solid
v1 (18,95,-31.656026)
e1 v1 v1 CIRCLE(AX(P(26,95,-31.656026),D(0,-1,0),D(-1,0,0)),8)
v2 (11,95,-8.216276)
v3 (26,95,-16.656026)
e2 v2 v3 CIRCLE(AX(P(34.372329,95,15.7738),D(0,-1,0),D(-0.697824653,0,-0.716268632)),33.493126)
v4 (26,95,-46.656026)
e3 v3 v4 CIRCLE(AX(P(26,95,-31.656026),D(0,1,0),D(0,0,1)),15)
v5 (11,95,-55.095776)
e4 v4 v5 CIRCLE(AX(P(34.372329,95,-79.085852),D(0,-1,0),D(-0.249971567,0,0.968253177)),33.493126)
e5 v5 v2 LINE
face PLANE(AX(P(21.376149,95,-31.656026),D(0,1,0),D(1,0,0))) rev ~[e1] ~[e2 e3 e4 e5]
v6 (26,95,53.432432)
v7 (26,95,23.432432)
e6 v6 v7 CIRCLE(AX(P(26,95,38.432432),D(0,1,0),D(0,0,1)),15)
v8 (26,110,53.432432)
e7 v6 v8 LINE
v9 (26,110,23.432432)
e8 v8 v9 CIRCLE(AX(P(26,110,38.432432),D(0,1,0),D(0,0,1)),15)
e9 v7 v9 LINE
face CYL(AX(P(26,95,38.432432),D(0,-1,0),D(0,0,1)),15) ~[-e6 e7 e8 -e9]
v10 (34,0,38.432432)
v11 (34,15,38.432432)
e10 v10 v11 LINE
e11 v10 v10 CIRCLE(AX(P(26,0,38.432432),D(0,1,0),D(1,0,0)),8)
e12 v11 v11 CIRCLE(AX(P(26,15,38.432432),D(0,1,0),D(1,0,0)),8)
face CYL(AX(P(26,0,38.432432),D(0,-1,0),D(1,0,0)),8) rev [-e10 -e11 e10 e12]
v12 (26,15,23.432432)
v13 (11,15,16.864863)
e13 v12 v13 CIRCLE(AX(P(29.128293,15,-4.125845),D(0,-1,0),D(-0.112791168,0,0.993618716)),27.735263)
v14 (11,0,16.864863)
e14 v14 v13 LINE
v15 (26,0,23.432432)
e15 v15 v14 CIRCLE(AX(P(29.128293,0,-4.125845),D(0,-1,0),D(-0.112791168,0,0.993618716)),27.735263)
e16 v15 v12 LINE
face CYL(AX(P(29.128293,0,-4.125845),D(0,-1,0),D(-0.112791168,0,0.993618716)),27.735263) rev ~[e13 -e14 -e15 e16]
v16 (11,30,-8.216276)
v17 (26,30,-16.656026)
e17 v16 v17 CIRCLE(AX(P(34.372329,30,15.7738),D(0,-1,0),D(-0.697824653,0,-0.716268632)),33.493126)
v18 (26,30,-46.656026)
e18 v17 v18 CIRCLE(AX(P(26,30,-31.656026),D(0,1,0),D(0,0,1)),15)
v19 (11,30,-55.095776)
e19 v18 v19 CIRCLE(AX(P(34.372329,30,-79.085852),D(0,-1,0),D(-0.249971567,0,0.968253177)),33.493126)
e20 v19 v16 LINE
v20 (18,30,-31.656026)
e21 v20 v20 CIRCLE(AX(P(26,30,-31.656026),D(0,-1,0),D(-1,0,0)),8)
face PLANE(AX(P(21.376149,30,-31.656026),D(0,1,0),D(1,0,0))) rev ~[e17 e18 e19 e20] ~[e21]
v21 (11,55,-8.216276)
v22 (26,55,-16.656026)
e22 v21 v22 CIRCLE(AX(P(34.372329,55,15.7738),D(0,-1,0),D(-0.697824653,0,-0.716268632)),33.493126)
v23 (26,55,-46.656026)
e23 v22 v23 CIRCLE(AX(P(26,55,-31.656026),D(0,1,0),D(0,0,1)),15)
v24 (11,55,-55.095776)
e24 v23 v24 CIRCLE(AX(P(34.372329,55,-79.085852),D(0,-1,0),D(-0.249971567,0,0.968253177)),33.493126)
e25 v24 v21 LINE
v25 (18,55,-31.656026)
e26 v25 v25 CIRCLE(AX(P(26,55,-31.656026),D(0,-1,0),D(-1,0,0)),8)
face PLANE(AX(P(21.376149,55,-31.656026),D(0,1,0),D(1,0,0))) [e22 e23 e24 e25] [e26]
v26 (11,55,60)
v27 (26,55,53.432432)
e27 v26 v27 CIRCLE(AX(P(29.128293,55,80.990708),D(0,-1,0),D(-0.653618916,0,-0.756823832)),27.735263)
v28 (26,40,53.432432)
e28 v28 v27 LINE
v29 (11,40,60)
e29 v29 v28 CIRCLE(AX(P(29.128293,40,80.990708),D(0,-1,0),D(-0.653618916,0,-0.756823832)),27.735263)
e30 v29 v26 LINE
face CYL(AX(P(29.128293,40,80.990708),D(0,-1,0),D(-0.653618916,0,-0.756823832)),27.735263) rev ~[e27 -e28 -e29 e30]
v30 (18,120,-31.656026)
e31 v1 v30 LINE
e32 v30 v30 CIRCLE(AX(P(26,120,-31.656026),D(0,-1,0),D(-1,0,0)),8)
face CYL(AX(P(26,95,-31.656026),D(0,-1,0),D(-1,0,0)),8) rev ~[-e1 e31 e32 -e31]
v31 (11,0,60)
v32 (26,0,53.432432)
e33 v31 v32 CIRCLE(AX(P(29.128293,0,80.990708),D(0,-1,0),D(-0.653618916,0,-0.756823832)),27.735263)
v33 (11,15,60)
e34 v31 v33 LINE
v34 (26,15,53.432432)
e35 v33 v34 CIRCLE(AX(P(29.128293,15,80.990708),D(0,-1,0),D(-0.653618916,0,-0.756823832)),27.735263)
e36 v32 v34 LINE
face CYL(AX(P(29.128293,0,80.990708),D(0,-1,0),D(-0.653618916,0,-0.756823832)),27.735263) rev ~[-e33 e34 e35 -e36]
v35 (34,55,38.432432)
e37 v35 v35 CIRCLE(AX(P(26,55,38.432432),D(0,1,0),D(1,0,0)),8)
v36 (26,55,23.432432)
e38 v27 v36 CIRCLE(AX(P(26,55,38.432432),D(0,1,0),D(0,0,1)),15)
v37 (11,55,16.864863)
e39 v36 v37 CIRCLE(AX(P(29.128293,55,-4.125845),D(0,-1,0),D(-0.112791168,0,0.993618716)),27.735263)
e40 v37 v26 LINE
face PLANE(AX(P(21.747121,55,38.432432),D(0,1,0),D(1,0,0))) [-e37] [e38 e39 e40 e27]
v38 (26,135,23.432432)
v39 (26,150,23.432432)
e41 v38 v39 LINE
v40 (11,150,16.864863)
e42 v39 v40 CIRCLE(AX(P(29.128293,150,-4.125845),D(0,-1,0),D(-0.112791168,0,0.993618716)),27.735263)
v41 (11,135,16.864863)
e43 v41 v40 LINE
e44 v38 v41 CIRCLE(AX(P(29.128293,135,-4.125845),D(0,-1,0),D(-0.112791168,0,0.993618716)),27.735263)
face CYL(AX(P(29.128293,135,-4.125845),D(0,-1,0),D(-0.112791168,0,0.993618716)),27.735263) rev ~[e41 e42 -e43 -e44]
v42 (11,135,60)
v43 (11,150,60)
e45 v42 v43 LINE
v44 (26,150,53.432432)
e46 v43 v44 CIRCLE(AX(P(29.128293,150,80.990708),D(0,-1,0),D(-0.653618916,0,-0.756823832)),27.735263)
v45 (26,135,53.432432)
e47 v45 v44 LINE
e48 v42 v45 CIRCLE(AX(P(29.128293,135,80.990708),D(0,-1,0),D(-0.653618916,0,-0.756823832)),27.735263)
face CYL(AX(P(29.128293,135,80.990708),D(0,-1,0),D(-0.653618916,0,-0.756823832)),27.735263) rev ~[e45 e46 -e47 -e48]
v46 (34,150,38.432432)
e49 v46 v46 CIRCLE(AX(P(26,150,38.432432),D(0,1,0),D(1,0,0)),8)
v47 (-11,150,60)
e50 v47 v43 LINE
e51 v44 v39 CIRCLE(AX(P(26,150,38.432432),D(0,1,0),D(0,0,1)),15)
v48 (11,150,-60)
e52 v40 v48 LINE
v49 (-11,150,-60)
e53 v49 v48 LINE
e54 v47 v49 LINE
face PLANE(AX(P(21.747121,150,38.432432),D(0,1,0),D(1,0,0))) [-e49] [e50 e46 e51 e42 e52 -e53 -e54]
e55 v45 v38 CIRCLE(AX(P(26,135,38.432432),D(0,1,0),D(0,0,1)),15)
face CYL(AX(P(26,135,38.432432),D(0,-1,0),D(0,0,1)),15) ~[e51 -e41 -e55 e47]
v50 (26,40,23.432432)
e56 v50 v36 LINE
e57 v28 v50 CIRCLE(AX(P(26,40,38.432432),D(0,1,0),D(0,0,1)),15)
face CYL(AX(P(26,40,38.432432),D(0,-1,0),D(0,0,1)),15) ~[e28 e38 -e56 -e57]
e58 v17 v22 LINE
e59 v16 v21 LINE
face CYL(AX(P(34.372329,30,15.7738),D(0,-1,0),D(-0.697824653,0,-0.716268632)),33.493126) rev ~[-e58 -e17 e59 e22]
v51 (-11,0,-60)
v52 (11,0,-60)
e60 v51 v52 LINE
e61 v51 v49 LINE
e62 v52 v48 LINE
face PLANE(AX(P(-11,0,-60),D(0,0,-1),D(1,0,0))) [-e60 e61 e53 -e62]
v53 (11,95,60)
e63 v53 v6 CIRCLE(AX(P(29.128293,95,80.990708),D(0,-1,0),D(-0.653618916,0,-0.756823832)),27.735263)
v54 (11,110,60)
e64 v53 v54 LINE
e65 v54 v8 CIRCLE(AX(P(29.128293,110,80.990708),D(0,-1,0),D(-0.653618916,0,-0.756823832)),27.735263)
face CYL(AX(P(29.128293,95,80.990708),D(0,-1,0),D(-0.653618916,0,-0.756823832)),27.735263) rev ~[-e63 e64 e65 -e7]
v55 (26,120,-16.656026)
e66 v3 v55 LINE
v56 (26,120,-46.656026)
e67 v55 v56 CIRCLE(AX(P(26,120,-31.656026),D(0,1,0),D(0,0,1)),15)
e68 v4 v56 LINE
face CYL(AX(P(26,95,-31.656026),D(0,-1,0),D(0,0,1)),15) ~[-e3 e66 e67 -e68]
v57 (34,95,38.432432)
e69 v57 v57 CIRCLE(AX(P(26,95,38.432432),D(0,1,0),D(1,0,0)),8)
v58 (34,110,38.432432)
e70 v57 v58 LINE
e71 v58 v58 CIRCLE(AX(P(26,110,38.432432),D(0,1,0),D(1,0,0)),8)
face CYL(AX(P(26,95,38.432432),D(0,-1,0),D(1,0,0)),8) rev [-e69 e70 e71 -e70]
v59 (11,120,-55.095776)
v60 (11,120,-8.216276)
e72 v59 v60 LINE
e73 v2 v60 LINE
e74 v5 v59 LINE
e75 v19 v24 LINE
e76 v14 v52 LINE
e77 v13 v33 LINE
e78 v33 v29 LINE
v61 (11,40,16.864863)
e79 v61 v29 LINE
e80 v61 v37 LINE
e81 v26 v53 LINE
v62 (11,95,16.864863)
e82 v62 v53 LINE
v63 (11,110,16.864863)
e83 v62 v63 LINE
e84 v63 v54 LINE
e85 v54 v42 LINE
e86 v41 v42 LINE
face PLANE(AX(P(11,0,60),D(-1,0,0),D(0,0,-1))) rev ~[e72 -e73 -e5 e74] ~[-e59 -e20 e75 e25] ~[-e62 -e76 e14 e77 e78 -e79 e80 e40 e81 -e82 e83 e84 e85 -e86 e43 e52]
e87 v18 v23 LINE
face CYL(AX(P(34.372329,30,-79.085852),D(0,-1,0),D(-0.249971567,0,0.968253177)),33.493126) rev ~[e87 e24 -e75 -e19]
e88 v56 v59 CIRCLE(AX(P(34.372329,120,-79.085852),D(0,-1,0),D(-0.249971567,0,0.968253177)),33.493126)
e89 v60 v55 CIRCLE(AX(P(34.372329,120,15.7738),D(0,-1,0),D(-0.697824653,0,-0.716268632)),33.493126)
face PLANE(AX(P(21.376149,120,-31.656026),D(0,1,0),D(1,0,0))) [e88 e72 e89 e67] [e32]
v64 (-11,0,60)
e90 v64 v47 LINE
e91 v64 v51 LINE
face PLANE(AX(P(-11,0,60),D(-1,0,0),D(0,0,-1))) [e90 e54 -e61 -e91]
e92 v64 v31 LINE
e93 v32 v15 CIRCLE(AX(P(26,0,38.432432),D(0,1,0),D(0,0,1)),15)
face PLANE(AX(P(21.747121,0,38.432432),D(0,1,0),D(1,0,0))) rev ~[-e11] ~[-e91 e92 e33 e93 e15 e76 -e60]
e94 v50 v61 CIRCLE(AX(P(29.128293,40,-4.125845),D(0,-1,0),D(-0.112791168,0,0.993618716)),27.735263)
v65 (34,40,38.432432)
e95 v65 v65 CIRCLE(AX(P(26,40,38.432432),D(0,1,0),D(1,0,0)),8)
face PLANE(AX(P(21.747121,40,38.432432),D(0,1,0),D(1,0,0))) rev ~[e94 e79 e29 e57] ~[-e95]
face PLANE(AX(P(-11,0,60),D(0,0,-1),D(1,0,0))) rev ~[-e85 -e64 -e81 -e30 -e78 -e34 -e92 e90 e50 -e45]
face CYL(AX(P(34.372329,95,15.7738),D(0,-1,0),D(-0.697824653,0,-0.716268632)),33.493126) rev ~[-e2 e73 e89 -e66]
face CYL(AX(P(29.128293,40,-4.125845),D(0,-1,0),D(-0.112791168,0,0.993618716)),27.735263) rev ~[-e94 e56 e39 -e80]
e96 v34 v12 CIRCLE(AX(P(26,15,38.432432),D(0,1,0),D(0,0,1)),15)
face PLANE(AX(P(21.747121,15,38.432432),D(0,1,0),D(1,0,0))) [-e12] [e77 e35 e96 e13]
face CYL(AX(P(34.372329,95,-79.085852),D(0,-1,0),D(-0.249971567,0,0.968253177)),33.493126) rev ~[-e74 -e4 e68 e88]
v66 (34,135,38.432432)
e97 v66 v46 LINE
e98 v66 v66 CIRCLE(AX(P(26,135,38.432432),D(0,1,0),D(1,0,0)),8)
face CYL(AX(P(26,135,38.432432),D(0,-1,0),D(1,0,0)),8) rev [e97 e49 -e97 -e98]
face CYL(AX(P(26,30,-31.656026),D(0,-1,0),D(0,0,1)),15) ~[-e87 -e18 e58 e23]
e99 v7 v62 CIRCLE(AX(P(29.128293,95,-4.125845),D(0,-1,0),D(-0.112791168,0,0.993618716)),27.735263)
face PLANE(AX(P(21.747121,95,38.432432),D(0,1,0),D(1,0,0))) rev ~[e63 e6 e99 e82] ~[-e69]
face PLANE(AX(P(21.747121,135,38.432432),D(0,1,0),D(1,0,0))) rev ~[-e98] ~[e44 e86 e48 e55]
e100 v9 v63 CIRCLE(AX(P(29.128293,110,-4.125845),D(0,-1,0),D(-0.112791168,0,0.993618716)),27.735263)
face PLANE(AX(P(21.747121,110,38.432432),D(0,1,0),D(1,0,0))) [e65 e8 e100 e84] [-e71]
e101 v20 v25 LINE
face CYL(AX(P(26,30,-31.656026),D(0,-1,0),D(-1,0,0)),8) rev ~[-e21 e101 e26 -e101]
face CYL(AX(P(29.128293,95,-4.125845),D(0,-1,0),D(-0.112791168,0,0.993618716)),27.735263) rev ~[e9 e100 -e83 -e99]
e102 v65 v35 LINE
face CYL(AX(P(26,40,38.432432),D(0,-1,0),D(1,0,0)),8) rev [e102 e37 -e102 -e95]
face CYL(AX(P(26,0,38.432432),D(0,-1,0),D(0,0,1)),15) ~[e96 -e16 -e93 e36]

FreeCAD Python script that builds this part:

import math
import FreeCAD as App
import Part
import Sketcher

V = App.Vector
Q = App.Units.Quantity

doc = App.newDocument("Part")
body = doc.addObject("PartDesign::Body", "Body")

# Sketch on XZ plane
sketch1 = body.newObject("Sketcher::SketchObject", "Sketch")
sketch1.AttachmentSupport = (doc.getObject("XZ_Plane"), [""])
sketch1.MapMode = "FlatFace"
sketch1.addGeometry(Part.LineSegment(V(-11, -60, 0), V(-11, 60, 0)), False)
sketch1.addGeometry(Part.LineSegment(V(-11, 60, 0), V(11, 60, 0)), False)
sketch1.addGeometry(Part.LineSegment(V(11, 60, 0), V(11, -60, 0)), False)
sketch1.addGeometry(Part.LineSegment(V(11, -60, 0), V(-11, -60, 0)), False)
sketch1.addConstraint(Sketcher.Constraint("Coincident", 0, 2, 1, 1))
sketch1.addConstraint(Sketcher.Constraint("Coincident", 1, 2, 2, 1))
sketch1.addConstraint(Sketcher.Constraint("Coincident", 2, 2, 3, 1))
sketch1.addConstraint(Sketcher.Constraint("Coincident", 3, 2, 0, 1))
sketch1.addConstraint(Sketcher.Constraint("Vertical", 0))
sketch1.addConstraint(Sketcher.Constraint("Horizontal", 1))
sketch1.addConstraint(Sketcher.Constraint("Vertical", 2))
sketch1.addConstraint(Sketcher.Constraint("Horizontal", 3))
sketch1.addConstraint(Sketcher.Constraint("Symmetric", 0, 2, 2, 2, -1, 1))
sketch1.addConstraint(Sketcher.Constraint("DistanceX", 1, 1, 1, 2, Q("22 mm")))
sketch1.addConstraint(Sketcher.Constraint("DistanceY", 0, 1, 0, 2, Q("120 mm")))
pad1 = body.newObject("PartDesign::Pad", "Pad")
pad1.Profile = sketch1
pad1.Length = 150
pad1.Reversed = True

# Sketch on XZ plane
sketch2 = body.newObject("Sketcher::SketchObject", "Sketch001")
sketch2.AttachmentSupport = (doc.getObject("XZ_Plane"), [""])
sketch2.MapMode = "FlatFace"
sketch2.addGeometry(Part.LineSegment(V(11, 17, 0), V(11, 60, 0)), False)
sketch2.addGeometry(Part.ArcOfCircle(Part.Circle(V(29, 81, 0), V(0, 0, 1), 28), math.radians(-131), math.radians(-96)), False)
sketch2.addGeometry(Part.ArcOfCircle(Part.Circle(V(26, 38, 0), V(0, 0, 1), 15), math.radians(-90), math.radians(90)), False)
sketch2.addGeometry(Part.ArcOfCircle(Part.Circle(V(29, -4, 0), V(0, 0, 1), 28), math.radians(96), math.radians(131)), False)
sketch2.addGeometry(Part.Circle(V(26, 38, 0), V(0, 0, 1), 8), False)
sketch2.addConstraint(Sketcher.Constraint("Coincident", 0, 2, 1, 1))
sketch2.addConstraint(Sketcher.Constraint("Coincident", 1, 2, 2, 2))
sketch2.addConstraint(Sketcher.Constraint("Coincident", 2, 1, 3, 1))
sketch2.addConstraint(Sketcher.Constraint("Coincident", 3, 2, 0, 1))
sketch2.addConstraint(Sketcher.Constraint("Vertical", 0))
sketch2.addConstraint(Sketcher.Constraint("Coincident", 4, 3, 2, 3))
sketch2.addConstraint(Sketcher.Constraint("Equal", 1, 3))
sketch2.addConstraint(Sketcher.Constraint("Vertical", 1, 3, 3, 3))
sketch2.addConstraint(Sketcher.Constraint("Vertical", 4, 3, 1, 2))
sketch2.addConstraint(Sketcher.Constraint("Vertical", 1, 2, 2, 1))
sketch2.addConstraint(Sketcher.Constraint("Diameter", 4, Q("16 mm")))
sketch2.addConstraint(Sketcher.Constraint("Radius", 2, Q("15 mm")))
sketch2.addConstraint(Sketcher.Constraint("DistanceX", -1, 1, 2, 3, Q("26 mm")))
sketch2.addConstraint(Sketcher.Constraint("DistanceX", -1, 1, 0, 2, Q("11 mm")))
sketch2.addConstraint(Sketcher.Constraint("DistanceY", -1, 1, 0, 2, Q("60 mm")))
sketch2.addConstraint(Sketcher.Constraint("Radius", 1, Q("27.735263 mm")))
sketch2.addConstraint(Sketcher.Constraint("DistanceY", 0, 1, 0, 2, Q("43.135137 mm")))
pad2 = body.newObject("PartDesign::Pad", "Pad001")
pad2.Profile = sketch2
pad2.Length = 15
pad2.Reversed = True
doc.recompute()

linearpattern = body.newObject("PartDesign::LinearPattern", "LinearPattern")
linearpattern.Originals = [pad2]
linearpattern.Direction = (doc.getObject("Y_Axis"), [""])
linearpattern.Mode = "offset"
linearpattern.Offset = 40
linearpattern.Occurrences = 2
body.Tip = linearpattern
doc.recompute()

linearpattern2 = body.newObject("PartDesign::LinearPattern", "LinearPattern001")
linearpattern2.Originals = [pad2]
linearpattern2.Direction = (doc.getObject("Y_Axis"), [""])
linearpattern2.Mode = "offset"
linearpattern2.Offset = 135
linearpattern2.Occurrences = 2
body.Tip = linearpattern2
doc.recompute()

linearpattern3 = body.newObject("PartDesign::LinearPattern", "LinearPattern002")
linearpattern3.Originals = [pad2]
linearpattern3.Direction = (doc.getObject("Y_Axis"), [""])
linearpattern3.Mode = "offset"
linearpattern3.Offset = 95
linearpattern3.Occurrences = 2
body.Tip = linearpattern3

# Sketch on XZ plane
sketch3 = body.newObject("Sketcher::SketchObject", "Sketch002")
sketch3.AttachmentSupport = (doc.getObject("XZ_Plane"), [""])
sketch3.MapMode = "FlatFace"
sketch3.AttachmentOffset = App.Placement(V(0, 0, -30), App.Rotation())
sketch3.addGeometry(Part.LineSegment(V(11, -8, 0), V(11, -55, 0)), False)
sketch3.addGeometry(Part.ArcOfCircle(Part.Circle(V(34, -79, 0), V(0, 0, 1), 33), math.radians(104), math.radians(134)), False)
sketch3.addGeometry(Part.ArcOfCircle(Part.Circle(V(26, -32, 0), V(0, 0, 1), 15), math.radians(-90), math.radians(90)), False)
sketch3.addGeometry(Part.ArcOfCircle(Part.Circle(V(34, 16, 0), V(0, 0, 1), 33), math.radians(-134), math.radians(-104)), False)
sketch3.addGeometry(Part.Circle(V(26, -32, 0), V(0, 0, 1), 8), False)
sketch3.addConstraint(Sketcher.Constraint("Coincident", 0, 2, 1, 2))
sketch3.addConstraint(Sketcher.Constraint("Coincident", 1, 1, 2, 1))
sketch3.addConstraint(Sketcher.Constraint("Coincident", 2, 2, 3, 2))
sketch3.addConstraint(Sketcher.Constraint("Coincident", 3, 1, 0, 1))
sketch3.addConstraint(Sketcher.Constraint("Vertical", 0))
sketch3.addConstraint(Sketcher.Constraint("Coincident", 4, 3, 2, 3))
sketch3.addConstraint(Sketcher.Constraint("Equal", 1, 3))
sketch3.addConstraint(Sketcher.Constraint("Vertical", 1, 3, 3, 3))
sketch3.addConstraint(Sketcher.Constraint("Vertical", 4, 3, 1, 1))
sketch3.addConstraint(Sketcher.Constraint("Vertical", 1, 1, 2, 2))
sketch3.addConstraint(Sketcher.Constraint("Diameter", 4, Q("16 mm")))
sketch3.addConstraint(Sketcher.Constraint("Radius", 2, Q("15 mm")))
sketch3.addConstraint(Sketcher.Constraint("DistanceX", -1, 1, 2, 3, Q("26 mm")))
sketch3.addConstraint(Sketcher.Constraint("DistanceX", -1, 1, 0, 2, Q("11 mm")))
sketch3.addConstraint(Sketcher.Constraint("DistanceY", 0, 2, 0, 1, Q("46.8795 mm")))
sketch3.addConstraint(Sketcher.Constraint("Radius", 1, Q("33.493126 mm")))
sketch3.addConstraint(Sketcher.Constraint("DistanceY", -1, 1, 3, 3, Q("15.7738 mm")))
pad3 = body.newObject("PartDesign::Pad", "Pad002")
pad3.Profile = sketch3
pad3.Length = 25
pad3.Reversed = True
doc.recompute()

linearpattern4 = body.newObject("PartDesign::LinearPattern", "LinearPattern003")
linearpattern4.Originals = [pad3]
linearpattern4.Direction = (doc.getObject("Y_Axis"), [""])
linearpattern4.Mode = "offset"
linearpattern4.Offset = 65
linearpattern4.Occurrences = 2
body.Tip = linearpattern4

doc.recompute()
